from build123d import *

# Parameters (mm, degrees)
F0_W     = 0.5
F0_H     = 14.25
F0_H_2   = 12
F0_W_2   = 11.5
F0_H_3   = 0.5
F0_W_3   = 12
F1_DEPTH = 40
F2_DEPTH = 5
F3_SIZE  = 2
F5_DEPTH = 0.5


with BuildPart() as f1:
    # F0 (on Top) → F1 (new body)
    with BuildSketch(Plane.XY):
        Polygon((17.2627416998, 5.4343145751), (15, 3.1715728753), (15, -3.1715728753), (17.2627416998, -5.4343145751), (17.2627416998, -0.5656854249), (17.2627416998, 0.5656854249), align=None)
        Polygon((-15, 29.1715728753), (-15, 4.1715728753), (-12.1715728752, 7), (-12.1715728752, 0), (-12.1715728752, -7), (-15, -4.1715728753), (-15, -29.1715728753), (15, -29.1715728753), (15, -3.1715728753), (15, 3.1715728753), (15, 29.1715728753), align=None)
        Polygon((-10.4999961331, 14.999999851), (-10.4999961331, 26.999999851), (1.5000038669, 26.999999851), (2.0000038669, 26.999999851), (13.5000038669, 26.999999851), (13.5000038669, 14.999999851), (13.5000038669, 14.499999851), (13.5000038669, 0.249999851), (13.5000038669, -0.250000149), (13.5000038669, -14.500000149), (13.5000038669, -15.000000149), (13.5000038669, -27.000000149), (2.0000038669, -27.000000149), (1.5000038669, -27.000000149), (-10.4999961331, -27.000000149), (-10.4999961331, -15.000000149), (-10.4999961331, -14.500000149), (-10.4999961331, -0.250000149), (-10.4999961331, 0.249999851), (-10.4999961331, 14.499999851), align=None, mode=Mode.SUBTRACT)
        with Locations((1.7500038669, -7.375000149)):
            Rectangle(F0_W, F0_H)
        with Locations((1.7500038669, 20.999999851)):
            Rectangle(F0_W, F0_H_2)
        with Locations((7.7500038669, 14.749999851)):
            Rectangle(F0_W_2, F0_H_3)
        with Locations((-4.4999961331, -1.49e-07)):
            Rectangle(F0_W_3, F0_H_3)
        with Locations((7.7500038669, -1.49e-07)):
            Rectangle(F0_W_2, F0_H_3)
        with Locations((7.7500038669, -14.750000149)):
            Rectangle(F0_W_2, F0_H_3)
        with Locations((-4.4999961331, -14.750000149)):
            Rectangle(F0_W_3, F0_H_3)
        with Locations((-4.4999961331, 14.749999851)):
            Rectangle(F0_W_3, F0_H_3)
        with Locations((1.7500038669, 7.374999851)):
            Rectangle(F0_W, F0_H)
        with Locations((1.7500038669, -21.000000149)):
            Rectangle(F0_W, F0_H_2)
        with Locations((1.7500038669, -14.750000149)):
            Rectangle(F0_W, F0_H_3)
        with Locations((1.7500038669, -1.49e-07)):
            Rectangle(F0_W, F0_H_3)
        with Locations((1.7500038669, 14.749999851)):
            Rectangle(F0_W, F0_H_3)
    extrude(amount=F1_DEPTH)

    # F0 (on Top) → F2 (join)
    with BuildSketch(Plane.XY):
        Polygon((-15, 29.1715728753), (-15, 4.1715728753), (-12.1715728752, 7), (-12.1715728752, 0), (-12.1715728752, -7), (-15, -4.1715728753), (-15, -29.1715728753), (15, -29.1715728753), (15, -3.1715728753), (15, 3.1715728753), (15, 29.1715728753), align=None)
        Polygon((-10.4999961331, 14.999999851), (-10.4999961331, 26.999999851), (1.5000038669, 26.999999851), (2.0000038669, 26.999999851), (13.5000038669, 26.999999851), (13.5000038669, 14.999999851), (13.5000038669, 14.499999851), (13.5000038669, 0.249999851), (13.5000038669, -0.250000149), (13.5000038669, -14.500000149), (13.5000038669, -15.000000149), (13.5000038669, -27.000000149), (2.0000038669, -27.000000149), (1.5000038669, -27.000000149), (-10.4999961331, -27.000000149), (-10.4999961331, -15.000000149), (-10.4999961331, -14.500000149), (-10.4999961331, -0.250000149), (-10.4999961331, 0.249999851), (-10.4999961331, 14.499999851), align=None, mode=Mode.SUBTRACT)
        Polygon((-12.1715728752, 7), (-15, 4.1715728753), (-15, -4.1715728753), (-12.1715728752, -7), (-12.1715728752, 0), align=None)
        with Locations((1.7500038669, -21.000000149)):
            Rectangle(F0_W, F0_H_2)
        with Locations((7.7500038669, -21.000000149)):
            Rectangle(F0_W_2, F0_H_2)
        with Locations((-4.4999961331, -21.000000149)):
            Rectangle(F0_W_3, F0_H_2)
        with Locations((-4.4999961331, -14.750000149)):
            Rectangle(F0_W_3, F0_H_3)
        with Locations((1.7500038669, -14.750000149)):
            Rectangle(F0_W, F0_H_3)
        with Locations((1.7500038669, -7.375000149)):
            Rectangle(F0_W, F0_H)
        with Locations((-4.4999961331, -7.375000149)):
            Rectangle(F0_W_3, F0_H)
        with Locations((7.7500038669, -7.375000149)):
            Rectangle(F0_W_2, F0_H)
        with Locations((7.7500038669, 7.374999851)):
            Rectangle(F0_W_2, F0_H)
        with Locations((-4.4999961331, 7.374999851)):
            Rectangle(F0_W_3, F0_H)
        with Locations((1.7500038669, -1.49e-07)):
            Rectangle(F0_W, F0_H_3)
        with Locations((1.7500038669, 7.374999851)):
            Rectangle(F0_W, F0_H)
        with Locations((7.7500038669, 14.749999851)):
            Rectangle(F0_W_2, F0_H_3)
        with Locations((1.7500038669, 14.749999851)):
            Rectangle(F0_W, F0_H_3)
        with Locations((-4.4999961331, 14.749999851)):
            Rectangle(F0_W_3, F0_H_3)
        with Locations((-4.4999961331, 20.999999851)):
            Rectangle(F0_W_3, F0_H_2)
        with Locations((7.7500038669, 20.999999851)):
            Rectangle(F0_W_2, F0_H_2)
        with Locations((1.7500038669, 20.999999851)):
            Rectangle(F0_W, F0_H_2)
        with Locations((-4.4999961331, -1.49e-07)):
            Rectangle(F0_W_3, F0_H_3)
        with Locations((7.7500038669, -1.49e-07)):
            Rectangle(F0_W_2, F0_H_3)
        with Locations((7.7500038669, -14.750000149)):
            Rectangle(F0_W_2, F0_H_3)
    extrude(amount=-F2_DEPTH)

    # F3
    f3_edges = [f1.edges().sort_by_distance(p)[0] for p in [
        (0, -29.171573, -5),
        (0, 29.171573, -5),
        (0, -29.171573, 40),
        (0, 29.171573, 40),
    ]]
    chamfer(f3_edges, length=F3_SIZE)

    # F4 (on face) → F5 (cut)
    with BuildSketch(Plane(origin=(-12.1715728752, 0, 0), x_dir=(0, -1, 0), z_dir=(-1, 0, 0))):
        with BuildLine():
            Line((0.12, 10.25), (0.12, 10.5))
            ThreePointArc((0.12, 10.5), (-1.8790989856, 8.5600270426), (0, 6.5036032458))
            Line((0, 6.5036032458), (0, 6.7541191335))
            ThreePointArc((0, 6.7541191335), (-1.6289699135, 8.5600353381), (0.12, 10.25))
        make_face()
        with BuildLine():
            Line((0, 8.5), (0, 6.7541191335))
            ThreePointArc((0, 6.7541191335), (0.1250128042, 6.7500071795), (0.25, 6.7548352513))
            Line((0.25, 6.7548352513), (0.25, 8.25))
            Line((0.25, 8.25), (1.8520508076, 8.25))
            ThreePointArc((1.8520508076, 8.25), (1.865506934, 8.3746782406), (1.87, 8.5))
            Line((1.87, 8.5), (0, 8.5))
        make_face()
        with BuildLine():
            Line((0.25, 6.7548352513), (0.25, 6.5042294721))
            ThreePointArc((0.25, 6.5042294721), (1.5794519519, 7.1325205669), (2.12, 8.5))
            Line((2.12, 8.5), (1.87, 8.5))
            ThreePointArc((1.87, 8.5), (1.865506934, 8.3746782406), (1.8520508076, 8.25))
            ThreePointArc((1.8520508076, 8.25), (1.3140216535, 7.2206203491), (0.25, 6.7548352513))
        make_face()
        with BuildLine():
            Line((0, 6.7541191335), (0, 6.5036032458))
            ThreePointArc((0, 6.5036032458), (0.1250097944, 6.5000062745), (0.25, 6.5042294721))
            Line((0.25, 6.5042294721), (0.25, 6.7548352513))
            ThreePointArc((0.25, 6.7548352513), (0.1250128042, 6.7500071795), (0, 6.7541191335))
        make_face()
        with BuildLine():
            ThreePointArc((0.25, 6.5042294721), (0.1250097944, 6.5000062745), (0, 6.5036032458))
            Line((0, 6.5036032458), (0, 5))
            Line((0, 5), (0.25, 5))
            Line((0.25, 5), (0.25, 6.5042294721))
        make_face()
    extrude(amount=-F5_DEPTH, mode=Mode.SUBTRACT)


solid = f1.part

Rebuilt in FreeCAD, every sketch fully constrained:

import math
import FreeCAD as App
import Part
import Sketcher
Q = App.Units.Quantity


def edges_at(feature, points):
    """Names of the edges that pass closest to the given points."""
    edges = feature.Shape.Edges
    near = lambda p: min(range(len(edges)), key=lambda i: edges[i].distToShape(Part.Vertex(*p))[0])
    return sorted({f"Edge{near(p) + 1}" for p in points})


def add_polygon(sketch, points):
    """Adds a closed chain of lines whose ends are joined by coincident constraints."""
    first, n = sketch.GeometryCount, len(points)
    for a, b in zip(points, points[1:] + points[:1]):
        sketch.addGeometry(Part.LineSegment(App.Vector(*a, 0), App.Vector(*b, 0)), False)
    for i in range(n):
        sketch.addConstraint(Sketcher.Constraint("Coincident", first + i, 2, first + (i + 1) % n, 1))

doc = App.newDocument("Part")
params = doc.addObject("Spreadsheet::Sheet", "Params")
for row, (alias, value) in enumerate([
    ("sketch1_width", "30 mm"),
    ("sketch1_width2", "12 mm"),
    ("sketch1_height", "26 mm"),
    ("sketch1_height2", "25 mm"),
    ("sketch1_height3", "14 mm"),
    ("pad1_length", "40 mm"),
    ("sketch2_width", "30 mm"),
    ("pad2_length", "5 mm"),
    ("chamfer_size", "2 mm"),
    ("sketch3_radius", "2 mm"),
    ("sketch3_radius2", "1.75 mm"),
    ("sketch3_width", "2.12 mm"),
    ("pocket1_length", "0.5 mm"),
], start=1):
    params.set(f"A{row}", alias)
    params.set(f"B{row}", "=" + value)
    params.setAlias(f"B{row}", alias)

body = doc.addObject("PartDesign::Body", "Body")

# Sketch on XY plane
sketch1 = doc.addObject("Sketcher::SketchObject", "Sketch")
body.addObject(sketch1)
sketch1.AttachmentSupport = (doc.XY_Plane, [""])
sketch1.MapMode = "FlatFace"
add_polygon(sketch1, [(17.3, 5.4), (15, 3.2), (15, 29.2), (-15, 29.2), (-15, 4.2), (-12.2, 7), (-12.2, -7), (-15, -4.2), (-15, -29.2), (15, -29.2), (15, -3.2), (17.3, -5.4)])  # lines 0-11
add_polygon(sketch1, [(-10.5, -15), (1.5, -15), (1.5, -27), (-10.5, -27)])  # lines 12-15
add_polygon(sketch1, [(-10.5, -0.3), (1.5, -0.3), (1.5, -14.5), (-10.5, -14.5)])  # lines 16-19
add_polygon(sketch1, [(2, -27), (2, -15), (13.5, -15), (13.5, -27)])  # lines 20-23
add_polygon(sketch1, [(2, -14.5), (2, -0.3), (13.5, -0.3), (13.5, -14.5)])  # lines 24-27
add_polygon(sketch1, [(-10.5, 14.5), (1.5, 14.5), (1.5, 0.2), (-10.5, 0.2)])  # lines 28-31
add_polygon(sketch1, [(1.5, 15), (-10.5, 15), (-10.5, 27), (1.5, 27)])  # lines 32-35
add_polygon(sketch1, [(2, 0.2), (2, 14.5), (13.5, 14.5), (13.5, 0.2)])  # lines 36-39
add_polygon(sketch1, [(13.5, 15), (2, 15), (2, 27), (13.5, 27)])  # lines 40-43
sketch1.addConstraint(Sketcher.Constraint("Vertical", 1))
sketch1.addConstraint(Sketcher.Constraint("Horizontal", 2))
sketch1.addConstraint(Sketcher.Constraint("Vertical", 3))
sketch1.addConstraint(Sketcher.Constraint("Vertical", 5))
sketch1.addConstraint(Sketcher.Constraint("Vertical", 7))
sketch1.addConstraint(Sketcher.Constraint("Horizontal", 8))
sketch1.addConstraint(Sketcher.Constraint("Vertical", 9))
sketch1.addConstraint(Sketcher.Constraint("Vertical", 11))
sketch1.addConstraint(Sketcher.Constraint("Horizontal", 12))
sketch1.addConstraint(Sketcher.Constraint("Vertical", 13))
sketch1.addConstraint(Sketcher.Constraint("Horizontal", 14))
sketch1.addConstraint(Sketcher.Constraint("Vertical", 15))
sketch1.addConstraint(Sketcher.Constraint("Horizontal", 16))
sketch1.addConstraint(Sketcher.Constraint("Vertical", 17))
sketch1.addConstraint(Sketcher.Constraint("Horizontal", 18))
sketch1.addConstraint(Sketcher.Constraint("Vertical", 19))
sketch1.addConstraint(Sketcher.Constraint("Vertical", 20))
sketch1.addConstraint(Sketcher.Constraint("Horizontal", 21))
sketch1.addConstraint(Sketcher.Constraint("Vertical", 22))
sketch1.addConstraint(Sketcher.Constraint("Horizontal", 23))
sketch1.addConstraint(Sketcher.Constraint("Vertical", 24))
sketch1.addConstraint(Sketcher.Constraint("Horizontal", 25))
sketch1.addConstraint(Sketcher.Constraint("Vertical", 26))
sketch1.addConstraint(Sketcher.Constraint("Horizontal", 27))
sketch1.addConstraint(Sketcher.Constraint("Horizontal", 28))
sketch1.addConstraint(Sketcher.Constraint("Vertical", 29))
sketch1.addConstraint(Sketcher.Constraint("Horizontal", 30))
sketch1.addConstraint(Sketcher.Constraint("Vertical", 31))
sketch1.addConstraint(Sketcher.Constraint("Horizontal", 32))
sketch1.addConstraint(Sketcher.Constraint("Vertical", 33))
sketch1.addConstraint(Sketcher.Constraint("Horizontal", 34))
sketch1.addConstraint(Sketcher.Constraint("Vertical", 35))
sketch1.addConstraint(Sketcher.Constraint("Vertical", 36))
sketch1.addConstraint(Sketcher.Constraint("Horizontal", 37))
sketch1.addConstraint(Sketcher.Constraint("Vertical", 38))
sketch1.addConstraint(Sketcher.Constraint("Horizontal", 39))
sketch1.addConstraint(Sketcher.Constraint("Horizontal", 40))
sketch1.addConstraint(Sketcher.Constraint("Vertical", 41))
sketch1.addConstraint(Sketcher.Constraint("Horizontal", 42))
sketch1.addConstraint(Sketcher.Constraint("Vertical", 43))
sketch1.addConstraint(Sketcher.Constraint("Symmetric", 1, 2, 7, 2, -1, 1))
sketch1.addConstraint(Sketcher.Constraint("Symmetric", 3, 2, 6, 2, -1))
sketch1.addConstraint(Sketcher.Constraint("Symmetric", 0, 2, 9, 2, -1))
sketch1.addConstraint(Sketcher.Constraint("Symmetric", 17, 2, 28, 2, -1))
sketch1.addConstraint(Sketcher.Constraint("Symmetric", 19, 2, 30, 2, -1))
sketch1.addConstraint(Sketcher.Constraint("Symmetric", 15, 2, 32, 2, -1))
sketch1.addConstraint(Sketcher.Constraint("Symmetric", 13, 2, 34, 2, -1))
sketch1.addConstraint(Sketcher.Constraint("Symmetric", 27, 2, 36, 2, -1))
sketch1.addConstraint(Sketcher.Constraint("Symmetric", 25, 2, 38, 2, -1))
sketch1.addConstraint(Sketcher.Constraint("Symmetric", 20, 2, 40, 2, -1))
sketch1.addConstraint(Sketcher.Constraint("Symmetric", 22, 2, 42, 2, -1))
sketch1.addConstraint(Sketcher.Constraint("Parallel", 0, 4))
sketch1.addConstraint(Sketcher.Constraint("Perpendicular", 4, 6))
sketch1.addConstraint(Sketcher.Constraint("Parallel", 6, 10))
sketch1.addConstraint(Sketcher.Constraint("Horizontal", 15, 2, 20, 2))
sketch1.addConstraint(Sketcher.Constraint("Horizontal", 14, 2, 22, 2))
sketch1.addConstraint(Sketcher.Constraint("Horizontal", 19, 2, 24, 2))
sketch1.addConstraint(Sketcher.Constraint("Horizontal", 18, 2, 26, 2))
sketch1.addConstraint(Sketcher.Constraint("Vertical", 13, 2, 16, 2))
sketch1.addConstraint(Sketcher.Constraint("Vertical", 15, 2, 18, 2))
sketch1.addConstraint(Sketcher.Constraint("Vertical", 23, 2, 24, 2))
sketch1.addConstraint(Sketcher.Constraint("Vertical", 22, 2, 25, 2))
sketch1.addConstraint(Sketcher.Constraint("Equal", 34, 13))
sketch1.addConstraint(Sketcher.Constraint("Equal", 4, 6))
sketch1.addConstraint(Sketcher.Constraint("DistanceX", 2, 2, 2, 1, Q("30 mm")))
sketch1.addConstraint(Sketcher.Constraint("DistanceX", 12, 1, 12, 2, Q("12 mm")))
sketch1.addConstraint(Sketcher.Constraint("DistanceY", 1, 1, 1, 2, Q("26 mm")))
sketch1.addConstraint(Sketcher.Constraint("DistanceY", 3, 2, 3, 1, Q("25 mm")))
sketch1.addConstraint(Sketcher.Constraint("DistanceY", 5, 2, 5, 1, Q("14 mm")))
sketch1.addConstraint(Sketcher.Constraint("Distance", 4, Q("4 mm")))
sketch1.addConstraint(Sketcher.Constraint("DistanceX", 21, 1, 21, 2, Q("11.5 mm")))
sketch1.addConstraint(Sketcher.Constraint("DistanceY", 12, 2, -1, 1, Q("15 mm")))
sketch1.addConstraint(Sketcher.Constraint("DistanceX", 12, 2, 21, 2, Q("12 mm")))
sketch1.addConstraint(Sketcher.Constraint("Distance", 0, Q("3.2 mm")))
sketch1.addConstraint(Sketcher.Constraint("DistanceY", 17, 2, 17, 1, Q("14.25 mm")))
sketch1.addConstraint(Sketcher.Constraint("DistanceY", 17, 2, -1, 1, Q("14.5 mm")))
sketch1.addConstraint(Sketcher.Constraint("DistanceX", -1, 1, 12, 2, Q("1.500004 mm")))
sketch1.setExpression("Constraints[108]", "Params.sketch1_width")
sketch1.setExpression("Constraints[109]", "Params.sketch1_width2")
sketch1.setExpression("Constraints[110]", "Params.sketch1_height")
sketch1.setExpression("Constraints[111]", "Params.sketch1_height2")
sketch1.setExpression("Constraints[112]", "Params.sketch1_height3")
pad1 = doc.addObject("PartDesign::Pad", "Pad")
body.addObject(pad1)
pad1.Profile = sketch1
pad1.setExpression("Length", "Params.pad1_length")

# Sketch on XY plane
sketch2 = doc.addObject("Sketcher::SketchObject", "Sketch001")
body.addObject(sketch2)
sketch2.AttachmentSupport = (doc.XY_Plane, [""])
sketch2.MapMode = "FlatFace"
add_polygon(sketch2, [(-15, 29), (-15, -29), (15, -29), (15, 29)])  # lines 0-3
sketch2.addConstraint(Sketcher.Constraint("Vertical", 0))
sketch2.addConstraint(Sketcher.Constraint("Horizontal", 1))
sketch2.addConstraint(Sketcher.Constraint("Vertical", 2))
sketch2.addConstraint(Sketcher.Constraint("Horizontal", 3))
sketch2.addConstraint(Sketcher.Constraint("Symmetric", 0, 2, 2, 2, -1, 1))
sketch2.addConstraint(Sketcher.Constraint("DistanceX", 1, 1, 1, 2, Q("30 mm")))
sketch2.addConstraint(Sketcher.Constraint("DistanceY", 0, 2, 0, 1, Q("58.343146 mm")))
sketch2.setExpression("Constraints[9]", "Params.sketch2_width")
pad2 = doc.addObject("PartDesign::Pad", "Pad001")
body.addObject(pad2)
pad2.Profile = sketch2
pad2.setExpression("Length", "Params.pad2_length")
pad2.Reversed = True
doc.recompute()

chamfer = doc.addObject("PartDesign::Chamfer", "Chamfer")
body.addObject(chamfer)
chamfer.Base = (pad2, edges_at(pad2, [
    (0, -29.172, -5),
    (0, 29.172, -5),
    (0, -29.172, 40),
    (0, 29.172, 40),
]))
chamfer.setExpression("Size", "Params.chamfer_size")

# Sketch on YZ plane
sketch3 = doc.addObject("Sketcher::SketchObject", "Sketch002")
body.addObject(sketch3)
sketch3.AttachmentSupport = (doc.YZ_Plane, [""])
sketch3.MapMode = "FlatFace"
sketch3.AttachmentOffset = App.Placement(App.Vector(0, 0, -12.171573), App.Rotation())
sketch3.addGeometry(Part.LineSegment(App.Vector(-0.12, 10.25, 0), App.Vector(-0.12, 10.5, 0)), False)
sketch3.addGeometry(Part.ArcOfCircle(Part.Circle(App.Vector(-0.12, 8.5, 0), App.Vector(0, 0, 1), 2), math.radians(-87), math.radians(90)), False)
sketch3.addGeometry(Part.LineSegment(App.Vector(0, 6.5, 0), App.Vector(0, 5, 0)), False)
sketch3.addGeometry(Part.LineSegment(App.Vector(0, 5, 0), App.Vector(-0.25, 5, 0)), False)
sketch3.addGeometry(Part.LineSegment(App.Vector(-0.25, 5, 0), App.Vector(-0.25, 6.5, 0)), False)
sketch3.addGeometry(Part.ArcOfCircle(Part.Circle(App.Vector(-0.12, 8.5, 0), App.Vector(0, 0, 1), 2), math.radians(180), math.radians(266)), False)
sketch3.addGeometry(Part.LineSegment(App.Vector(-2.12, 8.5, 0), App.Vector(0, 8.5, 0)), False)
sketch3.addGeometry(Part.LineSegment(App.Vector(0, 8.5, 0), App.Vector(0, 6.75, 0)), False)
sketch3.addGeometry(Part.ArcOfCircle(Part.Circle(App.Vector(-0.12, 8.5, 0), App.Vector(0, 0, 1), 1.75), math.radians(-86), math.radians(90)), False)
sketch3.addGeometry(Part.LineSegment(App.Vector(-0.25, 6.75, 0), App.Vector(-0.25, 8.25, 0)), False)
sketch3.addGeometry(Part.LineSegment(App.Vector(-0.25, 8.25, 0), App.Vector(-1.85, 8.25, 0)), False)
sketch3.addGeometry(Part.ArcOfCircle(Part.Circle(App.Vector(-0.12, 8.5, 0), App.Vector(0, 0, 1), 1.75), math.radians(-172), math.radians(-94)), False)
sketch3.addConstraint(Sketcher.Constraint("Coincident", 0, 2, 1, 2))
sketch3.addConstraint(Sketcher.Constraint("Coincident", 1, 1, 2, 1))
sketch3.addConstraint(Sketcher.Constraint("Coincident", 2, 2, 3, 1))
sketch3.addConstraint(Sketcher.Constraint("Coincident", 3, 2, 4, 1))
sketch3.addConstraint(Sketcher.Constraint("Coincident", 4, 2, 5, 2))
sketch3.addConstraint(Sketcher.Constraint("Coincident", 5, 1, 6, 1))
sketch3.addConstraint(Sketcher.Constraint("Coincident", 6, 2, 7, 1))
sketch3.addConstraint(Sketcher.Constraint("Coincident", 7, 2, 8, 1))
sketch3.addConstraint(Sketcher.Constraint("Coincident", 8, 2, 0, 1))
sketch3.addConstraint(Sketcher.Constraint("Coincident", 9, 2, 10, 1))
sketch3.addConstraint(Sketcher.Constraint("Coincident", 10, 2, 11, 1))
sketch3.addConstraint(Sketcher.Constraint("Coincident", 11, 2, 9, 1))
sketch3.addConstraint(Sketcher.Constraint("Vertical", 0))
sketch3.addConstraint(Sketcher.Constraint("Vertical", 2))
sketch3.addConstraint(Sketcher.Constraint("Horizontal", 3))
sketch3.addConstraint(Sketcher.Constraint("Vertical", 4))
sketch3.addConstraint(Sketcher.Constraint("Horizontal", 6))
sketch3.addConstraint(Sketcher.Constraint("Vertical", 7))
sketch3.addConstraint(Sketcher.Constraint("Vertical", 9))
sketch3.addConstraint(Sketcher.Constraint("Horizontal", 10))
sketch3.addConstraint(Sketcher.Constraint("Coincident", 5, 3, 1, 3))
sketch3.addConstraint(Sketcher.Constraint("Coincident", 8, 3, 1, 3))
sketch3.addConstraint(Sketcher.Constraint("Coincident", 11, 3, 1, 3))
sketch3.addConstraint(Sketcher.Constraint("Equal", 1, 5))
sketch3.addConstraint(Sketcher.Constraint("Equal", 8, 11))
sketch3.addConstraint(Sketcher.Constraint("PointOnObject", 1, 1, -2))
sketch3.addConstraint(Sketcher.Constraint("PointOnObject", 6, 2, -2))
sketch3.addConstraint(Sketcher.Constraint("Horizontal", 11, 3, 5, 1))
sketch3.addConstraint(Sketcher.Constraint("Vertical", 11, 3, 0, 2))
sketch3.addConstraint(Sketcher.Constraint("Vertical", 4, 2, 9, 2))
sketch3.addConstraint(Sketcher.Constraint("Equal", 3, 0))
sketch3.addConstraint(Sketcher.Constraint("Radius", 1, Q("2 mm")))
sketch3.addConstraint(Sketcher.Constraint("Radius", 8, Q("1.75 mm")))
sketch3.addConstraint(Sketcher.Constraint("DistanceY", -1, 1, 2, 2, Q("5 mm")))
sketch3.addConstraint(Sketcher.Constraint("DistanceX", 6, 1, 6, 2, Q("2.12 mm")))
sketch3.addConstraint(Sketcher.Constraint("DistanceY", -1, 1, 1, 3, Q("8.5 mm")))
sketch3.addConstraint(Sketcher.Constraint("DistanceY", -1, 1, 9, 2, Q("8.25 mm")))
sketch3.setExpression("Constraints[31]", "Params.sketch3_radius")
sketch3.setExpression("Constraints[32]", "Params.sketch3_radius2")
sketch3.setExpression("Constraints[34]", "Params.sketch3_width")
pocket1 = doc.addObject("PartDesign::Pocket", "Pocket")
body.addObject(pocket1)
pocket1.Profile = sketch3
pocket1.setExpression("Length", "Params.pocket1_length")
pocket1.Reversed = True

doc.recompute()
